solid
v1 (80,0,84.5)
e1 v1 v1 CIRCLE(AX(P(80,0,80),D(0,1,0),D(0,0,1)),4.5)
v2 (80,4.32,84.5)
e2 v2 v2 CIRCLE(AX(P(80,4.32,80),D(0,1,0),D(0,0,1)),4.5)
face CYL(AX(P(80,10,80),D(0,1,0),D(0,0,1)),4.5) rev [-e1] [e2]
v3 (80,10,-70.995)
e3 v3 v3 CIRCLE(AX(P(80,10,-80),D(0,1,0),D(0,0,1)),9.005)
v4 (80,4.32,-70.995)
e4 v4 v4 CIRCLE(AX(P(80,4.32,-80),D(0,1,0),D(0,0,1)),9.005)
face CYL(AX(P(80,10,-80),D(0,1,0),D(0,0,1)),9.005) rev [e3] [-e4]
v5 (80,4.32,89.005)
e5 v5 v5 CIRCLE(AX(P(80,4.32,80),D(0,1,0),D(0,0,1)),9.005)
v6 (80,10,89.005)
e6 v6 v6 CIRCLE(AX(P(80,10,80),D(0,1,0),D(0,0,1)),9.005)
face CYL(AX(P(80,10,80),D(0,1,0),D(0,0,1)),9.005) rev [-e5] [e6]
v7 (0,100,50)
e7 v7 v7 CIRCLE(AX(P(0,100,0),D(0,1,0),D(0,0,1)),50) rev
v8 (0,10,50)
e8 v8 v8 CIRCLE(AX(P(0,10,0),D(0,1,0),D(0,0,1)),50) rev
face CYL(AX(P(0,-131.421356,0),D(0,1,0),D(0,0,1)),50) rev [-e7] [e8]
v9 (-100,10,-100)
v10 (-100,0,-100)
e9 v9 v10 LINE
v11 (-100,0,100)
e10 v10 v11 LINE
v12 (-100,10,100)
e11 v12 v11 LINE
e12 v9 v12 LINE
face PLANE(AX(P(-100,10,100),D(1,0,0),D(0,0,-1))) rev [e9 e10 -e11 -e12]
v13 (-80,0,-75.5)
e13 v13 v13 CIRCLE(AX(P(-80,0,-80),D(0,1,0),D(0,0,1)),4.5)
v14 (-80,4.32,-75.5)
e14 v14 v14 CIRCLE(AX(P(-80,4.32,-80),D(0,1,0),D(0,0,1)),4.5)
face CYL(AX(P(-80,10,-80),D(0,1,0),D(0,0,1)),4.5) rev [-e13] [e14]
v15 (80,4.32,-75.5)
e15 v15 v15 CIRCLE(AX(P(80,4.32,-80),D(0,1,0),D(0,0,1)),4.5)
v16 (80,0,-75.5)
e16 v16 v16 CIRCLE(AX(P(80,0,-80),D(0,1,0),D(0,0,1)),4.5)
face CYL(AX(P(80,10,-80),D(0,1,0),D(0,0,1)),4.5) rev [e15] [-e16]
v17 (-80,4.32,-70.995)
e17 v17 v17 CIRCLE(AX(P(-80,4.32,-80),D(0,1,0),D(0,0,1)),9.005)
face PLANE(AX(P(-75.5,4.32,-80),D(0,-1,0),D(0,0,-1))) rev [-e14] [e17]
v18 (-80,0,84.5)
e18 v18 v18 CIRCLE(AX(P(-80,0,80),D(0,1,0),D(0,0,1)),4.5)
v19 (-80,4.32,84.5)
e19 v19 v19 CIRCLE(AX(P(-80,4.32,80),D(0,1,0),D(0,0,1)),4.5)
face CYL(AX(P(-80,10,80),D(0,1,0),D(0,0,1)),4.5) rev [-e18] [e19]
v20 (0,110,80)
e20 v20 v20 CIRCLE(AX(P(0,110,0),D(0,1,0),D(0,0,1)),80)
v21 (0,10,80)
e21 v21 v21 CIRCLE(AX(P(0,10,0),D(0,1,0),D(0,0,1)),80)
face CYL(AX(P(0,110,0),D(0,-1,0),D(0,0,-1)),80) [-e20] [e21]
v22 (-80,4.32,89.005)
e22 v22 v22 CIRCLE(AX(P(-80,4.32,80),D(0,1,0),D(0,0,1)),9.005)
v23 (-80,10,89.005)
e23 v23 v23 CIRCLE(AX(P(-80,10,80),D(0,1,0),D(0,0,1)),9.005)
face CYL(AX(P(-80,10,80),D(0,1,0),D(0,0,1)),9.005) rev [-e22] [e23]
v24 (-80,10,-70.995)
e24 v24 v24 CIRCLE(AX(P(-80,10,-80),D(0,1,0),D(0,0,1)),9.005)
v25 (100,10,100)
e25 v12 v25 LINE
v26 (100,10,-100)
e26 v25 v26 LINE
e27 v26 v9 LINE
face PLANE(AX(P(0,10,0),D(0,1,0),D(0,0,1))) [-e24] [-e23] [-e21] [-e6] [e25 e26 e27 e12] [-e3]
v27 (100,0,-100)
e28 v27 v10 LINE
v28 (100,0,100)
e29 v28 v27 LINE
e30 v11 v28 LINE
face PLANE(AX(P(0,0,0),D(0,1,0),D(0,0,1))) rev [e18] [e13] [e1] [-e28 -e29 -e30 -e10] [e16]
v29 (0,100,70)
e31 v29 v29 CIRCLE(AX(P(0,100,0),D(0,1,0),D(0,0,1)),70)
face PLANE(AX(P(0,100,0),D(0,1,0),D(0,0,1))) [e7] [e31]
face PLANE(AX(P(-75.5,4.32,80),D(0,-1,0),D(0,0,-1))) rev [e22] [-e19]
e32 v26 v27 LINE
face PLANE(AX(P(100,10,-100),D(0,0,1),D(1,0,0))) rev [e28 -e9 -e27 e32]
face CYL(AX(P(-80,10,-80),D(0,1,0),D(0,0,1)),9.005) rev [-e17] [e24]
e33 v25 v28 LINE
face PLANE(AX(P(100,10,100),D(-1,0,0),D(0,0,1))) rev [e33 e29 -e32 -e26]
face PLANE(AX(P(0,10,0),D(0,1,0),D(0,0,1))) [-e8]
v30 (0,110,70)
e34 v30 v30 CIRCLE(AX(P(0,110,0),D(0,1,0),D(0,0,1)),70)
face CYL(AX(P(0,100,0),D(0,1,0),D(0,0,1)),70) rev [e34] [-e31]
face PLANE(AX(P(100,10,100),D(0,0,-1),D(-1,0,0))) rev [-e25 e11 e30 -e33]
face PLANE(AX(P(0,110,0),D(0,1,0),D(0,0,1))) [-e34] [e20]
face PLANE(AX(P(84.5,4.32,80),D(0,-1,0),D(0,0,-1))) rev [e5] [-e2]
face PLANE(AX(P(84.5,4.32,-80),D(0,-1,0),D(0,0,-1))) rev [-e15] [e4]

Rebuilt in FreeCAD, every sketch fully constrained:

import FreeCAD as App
import Part
import Sketcher

V = App.Vector


def add_polygon(sketch, points):
    """Adds a closed chain of lines whose ends are joined by coincident constraints."""
    first, n = sketch.GeometryCount, len(points)
    for a, b in zip(points, points[1:] + points[:1]):
        sketch.addGeometry(Part.LineSegment(App.Vector(*a, 0), App.Vector(*b, 0)), False)
    for i in range(n):
        sketch.addConstraint(Sketcher.Constraint("Coincident", first + i, 2, first + (i + 1) % n, 1))

doc = App.newDocument("Part")
body = doc.addObject("PartDesign::Body", "Body")

sketch1 = body.newObject("Sketcher::SketchObject", "Sketch")
sketch1.AttachmentSupport = (doc.getObject("XZ_Plane"), [""])
sketch1.MapMode = "FlatFace"
add_polygon(sketch1, [(-100, -100), (-100, 100), (100, 100), (100, -100)])
sketch1.addConstraint([
    Sketcher.Constraint("Vertical", 0),
    Sketcher.Constraint("Horizontal", 1),
    Sketcher.Constraint("Vertical", 2),
    Sketcher.Constraint("Horizontal", 3),
    Sketcher.Constraint("Symmetric", 0, 2, 2, 2, -1, 1),
    Sketcher.Constraint("Equal", 3, 0),
    Sketcher.Constraint("DistanceX", 1, 1, 1, 2, 200.0),
])
pad1 = body.newObject("PartDesign::Pad", "Pad")
pad1.Profile = sketch1
pad1.Length = 10
pad1.Reversed = True

sketch2 = body.newObject("Sketcher::SketchObject", "Sketch001")
sketch2.AttachmentSupport = (doc.getObject("XZ_Plane"), [""])
sketch2.MapMode = "FlatFace"
sketch2.AttachmentOffset = App.Placement(V(0, 0, -10), App.Rotation())
sketch2.addGeometry(Part.Circle(V(0, 0, 0), V(0, 0, 1), 80), False)
sketch2.addConstraint([
    Sketcher.Constraint("Coincident", 0, 3, -1, 1),
    Sketcher.Constraint("Diameter", 0, 160.0),
])
pad2 = body.newObject("PartDesign::Pad", "Pad001")
pad2.Profile = sketch2
pad2.Length = 100
pad2.Reversed = True

sketch3 = body.newObject("Sketcher::SketchObject", "Sketch002")
sketch3.AttachmentSupport = (doc.getObject("XZ_Plane"), [""])
sketch3.MapMode = "FlatFace"
sketch3.AttachmentOffset = App.Placement(V(0, 0, -110), App.Rotation())
sketch3.addGeometry(Part.Circle(V(0, 0, 0), V(0, 0, 1), 50), False)
sketch3.addConstraint([
    Sketcher.Constraint("Coincident", 0, 3, -1, 1),
    Sketcher.Constraint("Diameter", 0, 100.0),
])
pocket1 = body.newObject("PartDesign::Pocket", "Pocket")
pocket1.Profile = sketch3
pocket1.Length = 100
pocket1.Reversed = True

sketch4 = body.newObject("Sketcher::SketchObject", "Sketch003")
sketch4.AttachmentSupport = (doc.getObject("XZ_Plane"), [""])
sketch4.MapMode = "FlatFace"
sketch4.AttachmentOffset = App.Placement(V(0, 0, -110), App.Rotation())
sketch4.addGeometry(Part.Circle(V(0, 0, 0), V(0, 0, 1), 70), False)
sketch4.addConstraint([
    Sketcher.Constraint("Coincident", 0, 3, -1, 1),
    Sketcher.Constraint("Diameter", 0, 140.0),
])
pocket2 = body.newObject("PartDesign::Pocket", "Pocket001")
pocket2.Profile = sketch4
pocket2.Length = 10
pocket2.Reversed = True

sketch5 = body.newObject("Sketcher::SketchObject", "Sketch004")
sketch5.AttachmentSupport = (doc.getObject("XZ_Plane"), [""])
sketch5.MapMode = "FlatFace"
sketch5.AttachmentOffset = App.Placement(V(0, 0, -10), App.Rotation())
sketch5.addGeometry([
    Part.Circle(V(80, -80, 0), V(0, 0, 1), 4.5),
    Part.Circle(V(-80, -80, 0), V(0, 0, 1), 4.5),
    Part.Circle(V(80, 80, 0), V(0, 0, 1), 4.5),
    Part.Circle(V(-80, 80, 0), V(0, 0, 1), 4.5),
], False)
sketch5.addConstraint([
    Sketcher.Constraint("Equal", 0, 1),
    Sketcher.Constraint("Equal", 1, 2),
    Sketcher.Constraint("Equal", 2, 3),
    Sketcher.Constraint("Symmetric", 1, 3, 2, 3, -1, 1),
    Sketcher.Constraint("Symmetric", 0, 3, 3, 3, -1, 1),
    Sketcher.Constraint("Symmetric", 0, 3, 1, 3, -2),
    Sketcher.Constraint("Diameter", 0, 9.0),
    Sketcher.Constraint("DistanceX", -1, 1, 0, 3, 80.0),
    Sketcher.Constraint("DistanceY", 0, 3, -1, 1, 80.0),
])
doc.recompute()
hole = body.newObject("PartDesign::Hole", "Hole")
hole.Profile = sketch5
hole.ThreadType = "None"
hole.Diameter = 9
hole.DepthType = "ThroughAll"
hole.HoleCutType = "Counterbore"
hole.HoleCutDiameter = 18.01
hole.HoleCutDepth = 5.68
hole.Reversed = True

doc.recompute()
